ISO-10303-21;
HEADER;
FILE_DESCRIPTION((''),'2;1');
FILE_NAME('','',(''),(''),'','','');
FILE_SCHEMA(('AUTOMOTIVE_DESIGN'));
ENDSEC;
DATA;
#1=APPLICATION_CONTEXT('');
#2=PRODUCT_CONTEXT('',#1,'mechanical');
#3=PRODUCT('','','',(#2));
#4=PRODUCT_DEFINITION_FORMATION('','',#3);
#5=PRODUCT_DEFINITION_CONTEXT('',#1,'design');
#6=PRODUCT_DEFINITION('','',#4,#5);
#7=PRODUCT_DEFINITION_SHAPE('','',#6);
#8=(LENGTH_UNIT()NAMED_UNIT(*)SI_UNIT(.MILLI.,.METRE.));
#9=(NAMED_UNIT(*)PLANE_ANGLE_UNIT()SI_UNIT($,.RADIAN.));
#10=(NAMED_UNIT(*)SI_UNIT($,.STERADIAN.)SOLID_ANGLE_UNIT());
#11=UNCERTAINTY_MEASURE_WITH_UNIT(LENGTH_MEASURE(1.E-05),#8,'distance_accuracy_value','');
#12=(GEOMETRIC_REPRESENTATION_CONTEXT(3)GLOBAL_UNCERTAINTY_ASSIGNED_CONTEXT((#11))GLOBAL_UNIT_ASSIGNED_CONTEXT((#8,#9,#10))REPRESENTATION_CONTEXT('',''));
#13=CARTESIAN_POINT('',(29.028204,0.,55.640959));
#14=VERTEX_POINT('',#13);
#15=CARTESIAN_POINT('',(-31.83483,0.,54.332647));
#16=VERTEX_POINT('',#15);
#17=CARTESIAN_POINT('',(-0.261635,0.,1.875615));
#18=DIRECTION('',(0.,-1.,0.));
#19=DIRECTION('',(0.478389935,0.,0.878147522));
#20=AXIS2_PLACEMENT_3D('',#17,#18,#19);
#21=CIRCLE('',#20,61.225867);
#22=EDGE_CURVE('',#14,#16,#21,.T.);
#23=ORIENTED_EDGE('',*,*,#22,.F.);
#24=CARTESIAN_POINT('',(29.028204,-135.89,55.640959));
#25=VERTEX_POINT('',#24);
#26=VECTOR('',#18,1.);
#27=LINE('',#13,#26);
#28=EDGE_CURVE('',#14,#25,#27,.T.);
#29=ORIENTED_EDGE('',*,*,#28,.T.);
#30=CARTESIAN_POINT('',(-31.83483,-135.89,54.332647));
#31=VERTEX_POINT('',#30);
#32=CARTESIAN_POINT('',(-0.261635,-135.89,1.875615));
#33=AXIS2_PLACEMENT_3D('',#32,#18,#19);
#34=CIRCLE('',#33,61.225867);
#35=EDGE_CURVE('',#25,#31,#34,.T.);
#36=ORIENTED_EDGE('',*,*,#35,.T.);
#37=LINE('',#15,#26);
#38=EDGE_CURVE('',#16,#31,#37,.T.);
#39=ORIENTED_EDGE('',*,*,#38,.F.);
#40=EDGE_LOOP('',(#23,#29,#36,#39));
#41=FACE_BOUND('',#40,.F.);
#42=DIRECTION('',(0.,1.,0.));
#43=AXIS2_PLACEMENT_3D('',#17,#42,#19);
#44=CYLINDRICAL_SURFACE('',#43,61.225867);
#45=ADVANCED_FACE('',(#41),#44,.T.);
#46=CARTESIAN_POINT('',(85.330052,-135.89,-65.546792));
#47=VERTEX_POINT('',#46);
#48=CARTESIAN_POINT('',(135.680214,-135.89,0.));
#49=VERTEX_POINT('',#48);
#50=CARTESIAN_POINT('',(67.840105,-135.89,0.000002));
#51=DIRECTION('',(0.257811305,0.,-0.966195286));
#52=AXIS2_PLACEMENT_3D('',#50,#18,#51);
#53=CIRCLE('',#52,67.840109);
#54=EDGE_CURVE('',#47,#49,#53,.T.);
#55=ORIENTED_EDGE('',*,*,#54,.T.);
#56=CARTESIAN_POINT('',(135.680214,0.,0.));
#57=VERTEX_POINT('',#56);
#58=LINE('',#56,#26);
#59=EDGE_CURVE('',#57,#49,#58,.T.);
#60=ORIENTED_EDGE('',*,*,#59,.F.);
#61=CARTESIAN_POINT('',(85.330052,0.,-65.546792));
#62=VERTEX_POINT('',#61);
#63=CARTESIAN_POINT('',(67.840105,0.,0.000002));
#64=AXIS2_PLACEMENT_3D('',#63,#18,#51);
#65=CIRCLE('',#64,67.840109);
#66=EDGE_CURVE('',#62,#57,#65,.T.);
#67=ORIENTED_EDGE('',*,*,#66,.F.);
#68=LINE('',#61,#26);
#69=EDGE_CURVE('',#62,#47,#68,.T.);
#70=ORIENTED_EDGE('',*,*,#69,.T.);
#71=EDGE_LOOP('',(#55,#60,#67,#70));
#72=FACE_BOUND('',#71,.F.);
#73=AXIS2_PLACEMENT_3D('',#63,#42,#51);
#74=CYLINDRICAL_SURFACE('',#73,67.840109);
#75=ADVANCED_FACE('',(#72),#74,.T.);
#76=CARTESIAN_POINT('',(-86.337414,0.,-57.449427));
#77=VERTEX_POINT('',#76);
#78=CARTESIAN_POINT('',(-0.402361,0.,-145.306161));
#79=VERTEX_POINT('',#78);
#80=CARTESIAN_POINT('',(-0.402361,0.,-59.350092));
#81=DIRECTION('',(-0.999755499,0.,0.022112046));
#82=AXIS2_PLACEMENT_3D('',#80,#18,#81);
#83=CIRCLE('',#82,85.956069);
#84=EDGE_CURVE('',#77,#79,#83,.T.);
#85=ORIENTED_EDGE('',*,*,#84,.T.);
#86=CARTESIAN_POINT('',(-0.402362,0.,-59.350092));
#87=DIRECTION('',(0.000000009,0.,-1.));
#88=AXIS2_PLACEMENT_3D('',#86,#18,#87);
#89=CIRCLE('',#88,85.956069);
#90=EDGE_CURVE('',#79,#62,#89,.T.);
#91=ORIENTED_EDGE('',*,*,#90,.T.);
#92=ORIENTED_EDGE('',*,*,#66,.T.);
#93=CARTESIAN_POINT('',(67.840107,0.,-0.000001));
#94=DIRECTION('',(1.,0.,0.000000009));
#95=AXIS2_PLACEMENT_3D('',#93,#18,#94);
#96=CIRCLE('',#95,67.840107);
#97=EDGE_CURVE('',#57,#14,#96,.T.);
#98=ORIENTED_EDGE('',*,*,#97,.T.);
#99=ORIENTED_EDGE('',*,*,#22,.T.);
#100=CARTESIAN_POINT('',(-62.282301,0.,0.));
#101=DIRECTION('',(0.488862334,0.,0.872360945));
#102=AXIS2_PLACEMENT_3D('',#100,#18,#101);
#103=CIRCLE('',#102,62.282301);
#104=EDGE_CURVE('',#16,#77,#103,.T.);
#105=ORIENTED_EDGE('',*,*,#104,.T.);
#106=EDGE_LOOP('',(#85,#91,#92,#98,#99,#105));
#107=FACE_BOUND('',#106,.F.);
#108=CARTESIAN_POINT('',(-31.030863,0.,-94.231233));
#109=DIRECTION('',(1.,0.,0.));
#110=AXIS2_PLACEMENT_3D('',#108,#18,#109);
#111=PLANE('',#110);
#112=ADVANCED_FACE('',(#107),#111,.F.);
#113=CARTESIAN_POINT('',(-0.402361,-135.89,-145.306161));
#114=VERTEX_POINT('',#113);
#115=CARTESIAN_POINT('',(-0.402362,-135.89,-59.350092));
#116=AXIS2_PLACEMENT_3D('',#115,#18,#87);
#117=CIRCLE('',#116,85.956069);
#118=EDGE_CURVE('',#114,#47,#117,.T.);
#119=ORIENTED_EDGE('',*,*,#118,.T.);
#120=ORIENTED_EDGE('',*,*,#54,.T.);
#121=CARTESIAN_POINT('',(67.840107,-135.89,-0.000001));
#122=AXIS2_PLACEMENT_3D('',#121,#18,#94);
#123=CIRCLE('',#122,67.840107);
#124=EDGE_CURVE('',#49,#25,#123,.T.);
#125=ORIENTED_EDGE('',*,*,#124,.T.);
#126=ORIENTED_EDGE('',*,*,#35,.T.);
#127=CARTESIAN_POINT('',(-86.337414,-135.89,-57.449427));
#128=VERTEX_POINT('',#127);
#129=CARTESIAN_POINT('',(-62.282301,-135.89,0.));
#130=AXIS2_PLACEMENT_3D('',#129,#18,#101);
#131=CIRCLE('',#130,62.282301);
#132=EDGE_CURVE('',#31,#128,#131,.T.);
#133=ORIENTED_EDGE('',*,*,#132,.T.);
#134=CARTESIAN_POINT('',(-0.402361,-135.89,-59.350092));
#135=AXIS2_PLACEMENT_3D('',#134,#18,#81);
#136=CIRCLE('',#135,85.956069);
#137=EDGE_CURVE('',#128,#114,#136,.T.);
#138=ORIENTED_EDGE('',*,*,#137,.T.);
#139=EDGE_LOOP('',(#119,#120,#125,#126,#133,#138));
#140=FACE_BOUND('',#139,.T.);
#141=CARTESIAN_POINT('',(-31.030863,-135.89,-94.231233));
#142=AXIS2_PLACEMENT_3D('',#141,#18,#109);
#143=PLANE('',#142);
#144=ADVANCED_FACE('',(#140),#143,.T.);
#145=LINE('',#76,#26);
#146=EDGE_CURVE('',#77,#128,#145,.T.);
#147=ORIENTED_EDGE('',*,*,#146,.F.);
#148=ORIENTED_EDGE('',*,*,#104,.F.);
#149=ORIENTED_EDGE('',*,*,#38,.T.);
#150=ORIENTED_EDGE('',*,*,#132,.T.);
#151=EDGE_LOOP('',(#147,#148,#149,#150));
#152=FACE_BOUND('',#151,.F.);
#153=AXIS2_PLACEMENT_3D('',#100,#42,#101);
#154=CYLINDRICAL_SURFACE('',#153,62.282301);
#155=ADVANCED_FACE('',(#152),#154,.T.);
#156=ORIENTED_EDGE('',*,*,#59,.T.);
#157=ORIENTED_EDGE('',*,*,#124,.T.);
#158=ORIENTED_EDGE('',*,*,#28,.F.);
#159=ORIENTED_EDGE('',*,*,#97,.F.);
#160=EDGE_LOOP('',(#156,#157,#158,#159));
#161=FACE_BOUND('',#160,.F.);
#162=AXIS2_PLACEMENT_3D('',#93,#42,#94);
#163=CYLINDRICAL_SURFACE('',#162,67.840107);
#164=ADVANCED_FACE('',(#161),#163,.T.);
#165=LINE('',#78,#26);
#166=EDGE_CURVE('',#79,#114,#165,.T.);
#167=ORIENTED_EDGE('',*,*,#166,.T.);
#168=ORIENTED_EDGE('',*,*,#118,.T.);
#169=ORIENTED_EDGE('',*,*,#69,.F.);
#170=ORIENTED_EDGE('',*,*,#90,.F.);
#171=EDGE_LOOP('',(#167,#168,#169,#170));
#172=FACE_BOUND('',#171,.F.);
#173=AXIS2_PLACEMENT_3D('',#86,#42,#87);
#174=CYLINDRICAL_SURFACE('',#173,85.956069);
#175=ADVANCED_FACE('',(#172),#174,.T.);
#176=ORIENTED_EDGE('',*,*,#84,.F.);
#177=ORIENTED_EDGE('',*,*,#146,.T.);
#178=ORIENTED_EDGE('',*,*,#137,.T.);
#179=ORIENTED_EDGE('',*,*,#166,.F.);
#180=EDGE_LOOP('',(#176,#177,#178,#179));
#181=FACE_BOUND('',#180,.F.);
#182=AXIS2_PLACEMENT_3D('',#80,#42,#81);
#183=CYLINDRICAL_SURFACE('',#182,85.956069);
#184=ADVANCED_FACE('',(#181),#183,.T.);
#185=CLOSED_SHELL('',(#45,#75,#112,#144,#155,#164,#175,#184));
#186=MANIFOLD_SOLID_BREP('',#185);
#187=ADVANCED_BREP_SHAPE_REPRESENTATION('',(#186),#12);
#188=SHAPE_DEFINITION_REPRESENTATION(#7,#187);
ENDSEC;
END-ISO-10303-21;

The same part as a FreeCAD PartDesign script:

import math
import FreeCAD as App
import Part
import Sketcher
from FreeCAD import Vector
Q = App.Units.Quantity

doc = App.newDocument("Part")
body = doc.addObject("PartDesign::Body", "Body")

# Sketch on XZ plane
sketch1 = body.newObject("Sketcher::SketchObject", "Sketch")
sketch1.AttachmentSupport = (doc.getObject("XZ_Plane"), [""])
sketch1.MapMode = "FlatFace"
sketch1.addGeometry(Part.ArcOfCircle(Part.Circle(Vector(-0.402361, -59.350092, 0), Vector(0, 0, 1), 85.956069), math.radians(178.73297), math.radians(270)), False)
sketch1.addGeometry(Part.ArcOfCircle(Part.Circle(Vector(-0.402362, -59.350092, 0), Vector(0, 0, 1), 85.956069), math.radians(-89.999999), math.radians(-4.134124)), False)
sketch1.addGeometry(Part.ArcOfCircle(Part.Circle(Vector(67.840105, 0.000002, 0), Vector(0, 0, 1), 67.840109), math.radians(-75.059768), math.radians(-0.000001)), False)
sketch1.addGeometry(Part.ArcOfCircle(Part.Circle(Vector(67.840107, -0.000001, 0), Vector(0, 0, 1), 67.840107), math.radians(0.000001), math.radians(124.89739)), False)
sketch1.addGeometry(Part.ArcOfCircle(Part.Circle(Vector(-0.261635, 1.875615, 0), Vector(0, 0, 1), 61.225867), math.radians(61.419701), math.radians(121.04318)), False)
sketch1.addGeometry(Part.ArcOfCircle(Part.Circle(Vector(-62.282301, 0, 0), Vector(0, 0, 1), 62.282301), math.radians(60.734166), math.radians(247.280059)), False)
sketch1.addConstraint(Sketcher.Constraint("Tangent", 0, 2, 1, 1))
sketch1.addConstraint(Sketcher.Constraint("Coincident", 1, 2, 2, 1))
sketch1.addConstraint(Sketcher.Constraint("Tangent", 2, 2, 3, 1))
sketch1.addConstraint(Sketcher.Constraint("Coincident", 3, 2, 4, 1))
sketch1.addConstraint(Sketcher.Constraint("Coincident", 4, 2, 5, 1))
sketch1.addConstraint(Sketcher.Constraint("Coincident", 5, 2, 0, 1))
sketch1.addConstraint(Sketcher.Constraint("Equal", 0, 1))
sketch1.addConstraint(Sketcher.Constraint("Equal", 2, 3))
sketch1.addConstraint(Sketcher.Constraint("PointOnObject", 2, 3, -1))
sketch1.addConstraint(Sketcher.Constraint("PointOnObject", 5, 3, -1))
sketch1.addConstraint(Sketcher.Constraint("PointOnObject", 2, 2, -1))
sketch1.addConstraint(Sketcher.Constraint("Vertical", 1, 3, 0, 2))
sketch1.addConstraint(Sketcher.Constraint("Radius", 5, 62.282301))
sketch1.addConstraint(Sketcher.Constraint("Radius", 0, 85.956069))
sketch1.addConstraint(Sketcher.Constraint("Radius", 2, 67.840109))
sketch1.addConstraint(Sketcher.Constraint("Radius", 4, 61.225867))
sketch1.addConstraint(Sketcher.Constraint("DistanceX", 5, 3, -1, 1, 62.282301))
sketch1.addConstraint(Sketcher.Constraint("DistanceY", 1, 2, 0, 3, 6.1967))
sketch1.addConstraint(Sketcher.Constraint("DistanceX", 3, 2, 2, 3, 38.811901))
sketch1.addConstraint(Sketcher.Constraint("DistanceX", 0, 3, -1, 1, 0.402361))
sketch1.addConstraint(Sketcher.Constraint("DistanceY", 0, 3, -1, 1, 59.350092))
sketch1.addConstraint(Sketcher.Constraint("DistanceX", 4, 2, -1, 1, 31.83483))
pad1 = body.newObject("PartDesign::Pad", "Pad")
pad1.Profile = sketch1
pad1.Length = Q("5.35 in")

doc.recompute()
